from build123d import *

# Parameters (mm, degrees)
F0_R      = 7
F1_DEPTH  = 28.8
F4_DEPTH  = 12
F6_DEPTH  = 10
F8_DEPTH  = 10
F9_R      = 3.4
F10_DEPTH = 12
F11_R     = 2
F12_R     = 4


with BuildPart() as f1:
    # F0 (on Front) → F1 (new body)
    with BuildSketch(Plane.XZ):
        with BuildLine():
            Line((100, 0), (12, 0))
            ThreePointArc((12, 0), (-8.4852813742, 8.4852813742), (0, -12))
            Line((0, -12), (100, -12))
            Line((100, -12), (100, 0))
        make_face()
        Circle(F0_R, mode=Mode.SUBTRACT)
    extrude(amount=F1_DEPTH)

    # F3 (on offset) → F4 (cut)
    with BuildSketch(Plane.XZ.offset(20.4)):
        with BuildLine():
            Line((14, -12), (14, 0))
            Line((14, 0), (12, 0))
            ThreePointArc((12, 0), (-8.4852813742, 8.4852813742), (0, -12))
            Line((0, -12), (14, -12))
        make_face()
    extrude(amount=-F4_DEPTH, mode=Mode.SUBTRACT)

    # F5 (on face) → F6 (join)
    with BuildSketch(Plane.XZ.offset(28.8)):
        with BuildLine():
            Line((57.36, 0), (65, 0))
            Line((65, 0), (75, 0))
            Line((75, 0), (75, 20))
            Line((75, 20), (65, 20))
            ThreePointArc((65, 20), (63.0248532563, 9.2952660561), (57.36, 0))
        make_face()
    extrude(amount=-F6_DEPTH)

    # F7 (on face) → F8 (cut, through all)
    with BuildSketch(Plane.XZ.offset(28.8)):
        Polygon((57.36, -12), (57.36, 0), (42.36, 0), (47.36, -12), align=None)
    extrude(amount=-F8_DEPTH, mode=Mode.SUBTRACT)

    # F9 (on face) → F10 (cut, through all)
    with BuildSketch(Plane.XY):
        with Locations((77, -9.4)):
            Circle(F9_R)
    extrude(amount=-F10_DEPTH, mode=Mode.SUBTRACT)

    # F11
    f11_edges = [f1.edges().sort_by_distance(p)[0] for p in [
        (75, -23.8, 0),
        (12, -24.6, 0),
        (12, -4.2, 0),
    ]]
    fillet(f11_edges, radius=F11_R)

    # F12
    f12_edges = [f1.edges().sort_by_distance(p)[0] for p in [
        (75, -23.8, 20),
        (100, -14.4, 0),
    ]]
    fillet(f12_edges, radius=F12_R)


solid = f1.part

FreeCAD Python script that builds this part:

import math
import FreeCAD as App
import Part
import Sketcher


def edges_at(feature, points):
    """Names of the edges that pass closest to the given points."""
    edges = feature.Shape.Edges
    near = lambda p: min(range(len(edges)), key=lambda i: edges[i].distToShape(Part.Vertex(*p))[0])
    return sorted({f"Edge{near(p) + 1}" for p in points})

doc = App.newDocument("Part")
body = doc.addObject("PartDesign::Body", "Body")

# Sketch on XZ plane
sketch1 = body.newObject("Sketcher::SketchObject", "Sketch")
sketch1.AttachmentSupport = (doc.getObject("XZ_Plane"), [""])
sketch1.MapMode = "FlatFace"
sketch1.addGeometry([
    Part.LineSegment(App.Vector(100, 0, 0), App.Vector(12, 0, 0)),  # 0
    Part.ArcOfCircle(Part.Circle(App.Vector(0, 0, 0), App.Vector(0, 0, 1), 12), math.radians(0), math.radians(270)),  # 1
    Part.LineSegment(App.Vector(0, -12, 0), App.Vector(100, -12, 0)),  # 2
    Part.LineSegment(App.Vector(100, -12, 0), App.Vector(100, 0, 0)),  # 3
    Part.Circle(App.Vector(0, 0, 0), App.Vector(0, 0, 1), 7),  # 4
], False)
sketch1.addConstraint([
    Sketcher.Constraint("Coincident", 0, 2, 1, 1),
    Sketcher.Constraint("Tangent", 1, 2, 2, 1),
    Sketcher.Constraint("Coincident", 2, 2, 3, 1),
    Sketcher.Constraint("Coincident", 3, 2, 0, 1),
    Sketcher.Constraint("Horizontal", 0),
    Sketcher.Constraint("Horizontal", 2),
    Sketcher.Constraint("Vertical", 3),
    Sketcher.Constraint("Coincident", 1, 3, -1, 1),
    Sketcher.Constraint("Coincident", 4, 3, -1, 1),
    Sketcher.Constraint("PointOnObject", 0, 2, -1),
    Sketcher.Constraint("Diameter", 4, 14.0),
    Sketcher.Constraint("Radius", 1, 12.0),
    Sketcher.Constraint("DistanceX", 0, 2, 0, 1, 88.0),
])
pad1 = body.newObject("PartDesign::Pad", "Pad")
pad1.Profile = sketch1
pad1.Length = 28.8

# Sketch on XZ plane
sketch2 = body.newObject("Sketcher::SketchObject", "Sketch001")
sketch2.AttachmentSupport = (doc.getObject("XZ_Plane"), [""])
sketch2.MapMode = "FlatFace"
sketch2.AttachmentOffset = App.Placement(App.Vector(0, 0, 20.4), App.Rotation())
sketch2.addGeometry([
    Part.LineSegment(App.Vector(14, -12, 0), App.Vector(14, 0, 0)),
    Part.LineSegment(App.Vector(14, 0, 0), App.Vector(12, 0, 0)),
    Part.ArcOfCircle(Part.Circle(App.Vector(0, 0, 0), App.Vector(0, 0, 1), 12), math.radians(0), math.radians(270)),
    Part.LineSegment(App.Vector(0, -12, 0), App.Vector(14, -12, 0)),
], False)
sketch2.addConstraint([
    Sketcher.Constraint("Coincident", 0, 2, 1, 1),
    Sketcher.Constraint("Coincident", 1, 2, 2, 1),
    Sketcher.Constraint("Tangent", 2, 2, 3, 1),
    Sketcher.Constraint("Coincident", 3, 2, 0, 1),
    Sketcher.Constraint("Vertical", 0),
    Sketcher.Constraint("Horizontal", 1),
    Sketcher.Constraint("Horizontal", 3),
    Sketcher.Constraint("Coincident", 2, 3, -1, 1),
    Sketcher.Constraint("PointOnObject", 0, 2, -1),
    Sketcher.Constraint("Radius", 2, 12.0),
    Sketcher.Constraint("DistanceX", 1, 2, 1, 1, 2.0),
])
pocket1 = body.newObject("PartDesign::Pocket", "Pocket")
pocket1.Profile = sketch2
pocket1.Length = 12

# Sketch on XZ plane
sketch3 = body.newObject("Sketcher::SketchObject", "Sketch002")
sketch3.AttachmentSupport = (doc.getObject("XZ_Plane"), [""])
sketch3.MapMode = "FlatFace"
sketch3.AttachmentOffset = App.Placement(App.Vector(0, 0, 28.8), App.Rotation())
sketch3.addGeometry([
    Part.LineSegment(App.Vector(57, 0, 0), App.Vector(75, 0, 0)),
    Part.LineSegment(App.Vector(75, 0, 0), App.Vector(75, 20, 0)),
    Part.LineSegment(App.Vector(75, 20, 0), App.Vector(65, 20, 0)),
    Part.ArcOfCircle(Part.Circle(App.Vector(35, 20, 0), App.Vector(0, 0, 1), 30), math.radians(-42), math.radians(0)),
], False)
sketch3.addConstraint([
    Sketcher.Constraint("Coincident", 0, 2, 1, 1),
    Sketcher.Constraint("Coincident", 1, 2, 2, 1),
    Sketcher.Constraint("Coincident", 2, 2, 3, 2),
    Sketcher.Constraint("Coincident", 3, 1, 0, 1),
    Sketcher.Constraint("Horizontal", 0),
    Sketcher.Constraint("Vertical", 1),
    Sketcher.Constraint("Horizontal", 2),
    Sketcher.Constraint("PointOnObject", 0, 2, -1),
    Sketcher.Constraint("Radius", 3, 30.0),
    Sketcher.Constraint("DistanceX", 2, 2, 2, 1, 10.0),
    Sketcher.Constraint("DistanceY", 1, 1, 1, 2, 20.0),
    Sketcher.Constraint("DistanceX", -1, 1, 3, 3, 35.0),
    Sketcher.Constraint("DistanceX", 0, 1, 0, 2, 17.64),
])
pad2 = body.newObject("PartDesign::Pad", "Pad001")
pad2.Profile = sketch3
pad2.Length = 10
pad2.Reversed = True

# Sketch on XZ plane
sketch4 = body.newObject("Sketcher::SketchObject", "Sketch003")
sketch4.AttachmentSupport = (doc.getObject("XZ_Plane"), [""])
sketch4.MapMode = "FlatFace"
sketch4.AttachmentOffset = App.Placement(App.Vector(0, 0, 28.8), App.Rotation())
sketch4.addGeometry([
    Part.LineSegment(App.Vector(57, -12, 0), App.Vector(57, 0, 0)),
    Part.LineSegment(App.Vector(57, 0, 0), App.Vector(42, 0, 0)),
    Part.LineSegment(App.Vector(42, 0, 0), App.Vector(47, -12, 0)),
    Part.LineSegment(App.Vector(47, -12, 0), App.Vector(57, -12, 0)),
], False)
sketch4.addConstraint([
    Sketcher.Constraint("Coincident", 0, 2, 1, 1),
    Sketcher.Constraint("Coincident", 1, 2, 2, 1),
    Sketcher.Constraint("Coincident", 2, 2, 3, 1),
    Sketcher.Constraint("Coincident", 3, 2, 0, 1),
    Sketcher.Constraint("Vertical", 0),
    Sketcher.Constraint("Horizontal", 1),
    Sketcher.Constraint("Horizontal", 3),
    Sketcher.Constraint("PointOnObject", 0, 2, -1),
    Sketcher.Constraint("DistanceX", 1, 2, 1, 1, 15.0),
    Sketcher.Constraint("DistanceX", 3, 1, 3, 2, 10.0),
    Sketcher.Constraint("DistanceY", 0, 1, 0, 2, 12.0),
    Sketcher.Constraint("DistanceX", -1, 1, 0, 2, 57.36),
])
pocket2 = body.newObject("PartDesign::Pocket", "Pocket001")
pocket2.Profile = sketch4
pocket2.Length = 10

# Sketch on XY plane
sketch5 = body.newObject("Sketcher::SketchObject", "Sketch004")
sketch5.AttachmentSupport = (doc.getObject("XY_Plane"), [""])
sketch5.MapMode = "FlatFace"
sketch5.addGeometry(Part.Circle(App.Vector(77, -9.4, 0), App.Vector(0, 0, 1), 3.4), False)
sketch5.addConstraint([
    Sketcher.Constraint("Diameter", 0, 6.8),
    Sketcher.Constraint("DistanceX", -1, 1, 0, 3, 77.0),
    Sketcher.Constraint("DistanceY", 0, 3, -1, 1, 9.4),
])
pocket3 = body.newObject("PartDesign::Pocket", "Pocket002")
pocket3.Profile = sketch5
pocket3.Type = "ThroughAll"
doc.recompute()

fillet = body.newObject("PartDesign::Fillet", "Fillet")
fillet.Base = (pocket3, edges_at(pocket3, [(75, -23.8, 0), (12, -24.6, 0), (12, -4.2, 0)]))
fillet.Radius = 2
doc.recompute()

fillet2 = body.newObject("PartDesign::Fillet", "Fillet001")
fillet2.Base = (fillet, edges_at(fillet, [(75, -23.8, 20), (100, -14.4, 0)]))
fillet2.Radius = 4

doc.recompute()
